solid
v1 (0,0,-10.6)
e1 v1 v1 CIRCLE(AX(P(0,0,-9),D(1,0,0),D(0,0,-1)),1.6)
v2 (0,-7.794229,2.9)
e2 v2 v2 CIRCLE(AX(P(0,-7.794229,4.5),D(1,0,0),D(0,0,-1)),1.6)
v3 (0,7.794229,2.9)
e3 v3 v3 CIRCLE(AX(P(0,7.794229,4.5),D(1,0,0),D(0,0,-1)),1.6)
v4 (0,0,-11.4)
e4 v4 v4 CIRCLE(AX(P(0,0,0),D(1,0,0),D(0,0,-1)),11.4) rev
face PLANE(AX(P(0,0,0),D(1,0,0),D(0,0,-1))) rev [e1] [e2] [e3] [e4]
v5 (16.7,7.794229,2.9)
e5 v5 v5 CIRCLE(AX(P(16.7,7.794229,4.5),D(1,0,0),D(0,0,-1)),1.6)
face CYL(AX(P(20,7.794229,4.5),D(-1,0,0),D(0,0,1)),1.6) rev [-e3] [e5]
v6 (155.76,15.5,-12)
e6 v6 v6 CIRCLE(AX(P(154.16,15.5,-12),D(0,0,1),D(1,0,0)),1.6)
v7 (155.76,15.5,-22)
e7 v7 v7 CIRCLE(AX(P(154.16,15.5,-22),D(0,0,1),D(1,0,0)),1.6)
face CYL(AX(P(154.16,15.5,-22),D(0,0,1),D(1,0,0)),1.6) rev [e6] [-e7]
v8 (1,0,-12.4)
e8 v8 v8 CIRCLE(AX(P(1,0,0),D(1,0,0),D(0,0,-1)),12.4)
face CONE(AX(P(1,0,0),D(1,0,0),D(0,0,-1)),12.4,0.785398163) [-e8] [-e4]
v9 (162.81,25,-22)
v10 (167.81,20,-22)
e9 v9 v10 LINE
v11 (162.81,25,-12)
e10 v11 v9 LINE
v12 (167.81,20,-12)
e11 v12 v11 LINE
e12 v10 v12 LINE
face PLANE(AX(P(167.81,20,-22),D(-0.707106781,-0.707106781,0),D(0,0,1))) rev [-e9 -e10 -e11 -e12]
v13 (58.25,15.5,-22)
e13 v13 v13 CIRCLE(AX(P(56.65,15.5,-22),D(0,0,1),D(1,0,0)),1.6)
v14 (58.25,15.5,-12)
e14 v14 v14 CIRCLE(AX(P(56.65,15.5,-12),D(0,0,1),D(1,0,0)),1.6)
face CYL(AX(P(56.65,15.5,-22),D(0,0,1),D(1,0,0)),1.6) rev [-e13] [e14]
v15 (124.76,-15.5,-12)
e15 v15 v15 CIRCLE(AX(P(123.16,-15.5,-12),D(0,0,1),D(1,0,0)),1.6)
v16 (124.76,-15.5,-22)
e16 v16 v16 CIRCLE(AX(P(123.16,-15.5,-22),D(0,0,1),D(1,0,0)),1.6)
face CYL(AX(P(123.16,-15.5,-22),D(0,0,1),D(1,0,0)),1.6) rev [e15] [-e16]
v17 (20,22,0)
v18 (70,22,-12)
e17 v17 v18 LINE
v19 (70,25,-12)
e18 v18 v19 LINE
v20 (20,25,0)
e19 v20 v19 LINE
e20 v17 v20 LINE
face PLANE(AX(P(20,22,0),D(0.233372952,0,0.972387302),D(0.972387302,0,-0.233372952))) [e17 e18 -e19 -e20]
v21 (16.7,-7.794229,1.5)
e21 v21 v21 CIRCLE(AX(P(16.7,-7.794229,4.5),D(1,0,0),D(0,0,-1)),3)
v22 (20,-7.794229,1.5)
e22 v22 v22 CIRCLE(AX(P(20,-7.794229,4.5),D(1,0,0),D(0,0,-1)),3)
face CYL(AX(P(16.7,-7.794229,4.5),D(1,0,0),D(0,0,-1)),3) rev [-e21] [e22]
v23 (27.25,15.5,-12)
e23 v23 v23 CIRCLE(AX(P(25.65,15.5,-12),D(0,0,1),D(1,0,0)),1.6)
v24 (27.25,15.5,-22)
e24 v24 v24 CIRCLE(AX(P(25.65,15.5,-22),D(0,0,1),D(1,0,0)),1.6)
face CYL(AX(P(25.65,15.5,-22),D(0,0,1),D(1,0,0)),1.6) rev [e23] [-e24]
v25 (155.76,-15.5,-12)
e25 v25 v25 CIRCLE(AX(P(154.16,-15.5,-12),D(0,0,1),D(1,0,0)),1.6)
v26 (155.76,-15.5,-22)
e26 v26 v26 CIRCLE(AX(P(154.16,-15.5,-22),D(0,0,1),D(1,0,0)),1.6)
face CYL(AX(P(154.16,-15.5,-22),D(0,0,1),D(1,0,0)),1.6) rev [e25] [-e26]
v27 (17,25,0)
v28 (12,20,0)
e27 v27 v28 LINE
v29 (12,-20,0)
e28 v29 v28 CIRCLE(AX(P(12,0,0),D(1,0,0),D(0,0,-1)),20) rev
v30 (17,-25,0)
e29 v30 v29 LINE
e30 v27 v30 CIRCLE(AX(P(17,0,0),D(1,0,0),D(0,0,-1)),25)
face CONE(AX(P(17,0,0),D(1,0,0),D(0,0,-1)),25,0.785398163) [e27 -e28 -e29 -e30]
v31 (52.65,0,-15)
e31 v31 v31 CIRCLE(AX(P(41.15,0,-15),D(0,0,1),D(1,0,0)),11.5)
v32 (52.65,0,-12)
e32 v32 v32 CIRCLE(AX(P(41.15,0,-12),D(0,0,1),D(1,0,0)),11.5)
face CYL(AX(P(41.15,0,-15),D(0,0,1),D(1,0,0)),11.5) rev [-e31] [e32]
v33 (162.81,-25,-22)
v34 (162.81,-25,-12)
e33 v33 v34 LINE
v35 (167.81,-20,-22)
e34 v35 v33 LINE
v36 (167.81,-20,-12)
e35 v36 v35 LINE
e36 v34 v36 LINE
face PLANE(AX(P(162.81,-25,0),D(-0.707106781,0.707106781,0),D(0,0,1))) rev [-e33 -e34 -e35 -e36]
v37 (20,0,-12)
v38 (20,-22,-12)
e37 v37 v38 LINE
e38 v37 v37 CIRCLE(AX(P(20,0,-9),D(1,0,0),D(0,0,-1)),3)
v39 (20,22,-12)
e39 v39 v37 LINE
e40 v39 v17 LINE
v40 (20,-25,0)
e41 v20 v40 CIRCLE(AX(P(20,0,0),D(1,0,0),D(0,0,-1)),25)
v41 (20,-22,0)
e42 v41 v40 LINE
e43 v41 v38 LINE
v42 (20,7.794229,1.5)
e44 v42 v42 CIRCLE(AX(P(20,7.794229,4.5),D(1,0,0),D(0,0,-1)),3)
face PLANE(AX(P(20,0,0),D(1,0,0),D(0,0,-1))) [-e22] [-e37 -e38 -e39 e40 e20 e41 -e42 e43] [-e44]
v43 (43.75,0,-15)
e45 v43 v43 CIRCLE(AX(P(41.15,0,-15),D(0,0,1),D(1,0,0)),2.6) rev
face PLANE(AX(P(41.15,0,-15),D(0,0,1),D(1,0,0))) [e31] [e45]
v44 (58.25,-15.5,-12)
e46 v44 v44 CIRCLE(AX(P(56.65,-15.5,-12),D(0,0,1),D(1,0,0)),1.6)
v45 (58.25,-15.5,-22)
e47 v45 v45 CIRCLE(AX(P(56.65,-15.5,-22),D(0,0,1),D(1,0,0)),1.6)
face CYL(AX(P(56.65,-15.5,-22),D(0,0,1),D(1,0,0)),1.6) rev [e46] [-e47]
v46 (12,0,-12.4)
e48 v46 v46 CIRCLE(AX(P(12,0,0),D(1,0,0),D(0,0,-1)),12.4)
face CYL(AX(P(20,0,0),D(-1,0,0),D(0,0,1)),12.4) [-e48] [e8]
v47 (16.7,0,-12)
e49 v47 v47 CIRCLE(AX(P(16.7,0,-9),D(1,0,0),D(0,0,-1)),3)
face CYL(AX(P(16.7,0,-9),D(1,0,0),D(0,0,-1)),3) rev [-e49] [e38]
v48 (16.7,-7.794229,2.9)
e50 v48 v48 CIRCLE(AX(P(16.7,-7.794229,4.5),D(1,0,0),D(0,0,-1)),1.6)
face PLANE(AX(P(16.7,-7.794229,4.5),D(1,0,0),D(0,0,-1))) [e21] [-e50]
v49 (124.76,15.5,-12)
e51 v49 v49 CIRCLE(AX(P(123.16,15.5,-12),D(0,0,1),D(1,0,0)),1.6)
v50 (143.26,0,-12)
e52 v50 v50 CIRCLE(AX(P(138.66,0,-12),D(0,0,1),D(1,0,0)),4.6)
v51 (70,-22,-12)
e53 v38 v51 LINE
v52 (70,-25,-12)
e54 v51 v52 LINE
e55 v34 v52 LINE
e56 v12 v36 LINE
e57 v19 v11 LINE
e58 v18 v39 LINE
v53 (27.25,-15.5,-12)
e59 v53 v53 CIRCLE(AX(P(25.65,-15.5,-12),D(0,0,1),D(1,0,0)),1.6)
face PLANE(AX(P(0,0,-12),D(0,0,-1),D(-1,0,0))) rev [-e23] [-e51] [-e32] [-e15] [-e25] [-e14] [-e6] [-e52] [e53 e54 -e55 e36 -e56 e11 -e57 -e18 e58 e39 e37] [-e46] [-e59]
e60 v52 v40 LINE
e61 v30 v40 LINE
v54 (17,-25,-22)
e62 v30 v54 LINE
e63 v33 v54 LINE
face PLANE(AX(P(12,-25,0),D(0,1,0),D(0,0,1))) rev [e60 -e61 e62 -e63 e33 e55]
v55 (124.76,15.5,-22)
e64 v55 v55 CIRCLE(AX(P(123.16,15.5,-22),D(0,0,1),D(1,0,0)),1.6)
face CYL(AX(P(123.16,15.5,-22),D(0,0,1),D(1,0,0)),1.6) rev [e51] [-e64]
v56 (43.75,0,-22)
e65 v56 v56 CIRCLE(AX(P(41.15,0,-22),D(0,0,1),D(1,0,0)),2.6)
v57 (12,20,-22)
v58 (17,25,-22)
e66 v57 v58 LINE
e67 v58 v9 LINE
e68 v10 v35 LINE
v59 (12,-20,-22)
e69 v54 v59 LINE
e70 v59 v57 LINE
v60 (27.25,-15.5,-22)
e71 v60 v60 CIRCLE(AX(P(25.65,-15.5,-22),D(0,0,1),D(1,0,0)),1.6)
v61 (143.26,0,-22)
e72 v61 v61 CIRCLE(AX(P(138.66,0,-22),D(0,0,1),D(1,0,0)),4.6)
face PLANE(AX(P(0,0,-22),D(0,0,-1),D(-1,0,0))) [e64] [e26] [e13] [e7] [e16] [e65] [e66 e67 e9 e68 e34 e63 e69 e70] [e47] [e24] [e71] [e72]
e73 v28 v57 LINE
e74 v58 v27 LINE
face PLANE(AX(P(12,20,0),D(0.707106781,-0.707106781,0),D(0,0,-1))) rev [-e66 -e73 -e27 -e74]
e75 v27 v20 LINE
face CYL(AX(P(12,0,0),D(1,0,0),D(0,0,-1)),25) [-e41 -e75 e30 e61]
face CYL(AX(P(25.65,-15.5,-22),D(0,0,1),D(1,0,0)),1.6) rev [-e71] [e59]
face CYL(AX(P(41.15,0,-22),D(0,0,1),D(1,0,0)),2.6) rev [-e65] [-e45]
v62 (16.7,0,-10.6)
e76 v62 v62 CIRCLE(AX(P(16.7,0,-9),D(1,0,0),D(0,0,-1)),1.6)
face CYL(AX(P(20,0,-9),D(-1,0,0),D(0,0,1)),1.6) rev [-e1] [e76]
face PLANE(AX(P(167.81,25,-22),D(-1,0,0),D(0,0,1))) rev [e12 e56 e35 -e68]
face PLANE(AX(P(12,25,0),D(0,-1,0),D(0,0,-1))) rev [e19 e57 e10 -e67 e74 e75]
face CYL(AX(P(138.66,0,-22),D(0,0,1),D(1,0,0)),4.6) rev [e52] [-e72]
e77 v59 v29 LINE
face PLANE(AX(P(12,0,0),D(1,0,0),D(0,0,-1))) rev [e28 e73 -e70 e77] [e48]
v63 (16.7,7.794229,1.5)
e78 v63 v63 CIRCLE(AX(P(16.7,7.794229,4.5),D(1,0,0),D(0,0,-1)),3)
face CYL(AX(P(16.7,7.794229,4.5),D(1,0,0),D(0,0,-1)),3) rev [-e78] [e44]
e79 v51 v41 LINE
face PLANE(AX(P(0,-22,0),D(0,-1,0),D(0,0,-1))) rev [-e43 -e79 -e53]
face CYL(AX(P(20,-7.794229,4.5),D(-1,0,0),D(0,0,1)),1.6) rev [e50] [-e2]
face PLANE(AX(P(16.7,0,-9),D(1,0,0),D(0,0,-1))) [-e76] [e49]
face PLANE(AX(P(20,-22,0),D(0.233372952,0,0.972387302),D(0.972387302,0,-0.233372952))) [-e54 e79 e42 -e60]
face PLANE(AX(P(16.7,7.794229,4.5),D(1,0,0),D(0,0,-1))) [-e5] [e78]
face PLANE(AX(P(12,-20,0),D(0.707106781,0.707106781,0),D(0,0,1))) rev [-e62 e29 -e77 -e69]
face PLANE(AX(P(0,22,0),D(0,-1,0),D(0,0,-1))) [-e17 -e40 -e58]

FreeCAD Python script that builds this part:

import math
import FreeCAD as App
import Part
import Sketcher
Q = App.Units.Quantity


def edges_at(feature, points):
    """Names of the edges that pass closest to the given points."""
    edges = feature.Shape.Edges
    near = lambda p: min(range(len(edges)), key=lambda i: edges[i].distToShape(Part.Vertex(*p))[0])
    return sorted({f"Edge{near(p) + 1}" for p in points})

doc = App.newDocument("Part")
params = doc.addObject("Spreadsheet::Sheet", "Params")
for row, (alias, value) in enumerate([
    ("sketch1_diameter", "24.8 mm"),
    ("sketch1_diameter2", "3.2 mm"),
    ("pad1_length", "20 mm"),
    ("sketch2_radius", "25 mm"),
    ("sketch2_radius2", "12.4 mm"),
    ("sketch2_height", "12 mm"),
    ("pad2_length", "8 mm"),
    ("sketch3_height", "50 mm"),
    ("sketch3_width", "155.81 mm"),
    ("pad3_length", "10 mm"),
    ("sketch4_diameter", "3.2 mm"),
    ("sketch4_diameter2", "5.2 mm"),
    ("sketch4_diameter3", "9.2 mm"),
    ("pocket1_length", "10 mm"),
    ("sketch5_diameter", "6 mm"),
    ("pocket2_length", "3.3 mm"),
    ("sketch6_diameter", "23 mm"),
    ("pocket3_length", "3 mm"),
    ("sketch7_width", "50 mm"),
    ("sketch7_height", "12 mm"),
    ("pad4_length", "3 mm"),
    ("sketch8_width", "50 mm"),
    ("sketch8_height", "12 mm"),
    ("pad5_length", "3 mm"),
    ("chamfer_size", "5 mm"),
    ("chamfer2_size", "1 mm"),
], start=1):
    params.set(f"A{row}", alias)
    params.set(f"B{row}", "=" + value)
    params.setAlias(f"B{row}", alias)

body = doc.addObject("PartDesign::Body", "Body")

sketch1 = body.newObject("Sketcher::SketchObject", "Sketch")
sketch1.AttachmentSupport = (doc.getObject("YZ_Plane"), [""])
sketch1.MapMode = "FlatFace"
sketch1.addGeometry([
    Part.Circle(App.Vector(0, 0, 0), App.Vector(0, 0, 1), 12.4),
    Part.Circle(App.Vector(-7.8, 4.5, 0), App.Vector(0, 0, 1), 1.6),
    Part.Circle(App.Vector(0, -9, 0), App.Vector(0, 0, 1), 1.6),
    Part.Circle(App.Vector(7.8, 4.5, 0), App.Vector(0, 0, 1), 1.6),
], False)
sketch1.addConstraint([
    Sketcher.Constraint("Coincident", 0, 3, -1, 1),
    Sketcher.Constraint("Equal", 1, 2),
    Sketcher.Constraint("Equal", 2, 3),
    Sketcher.Constraint("Symmetric", 1, 3, 3, 3, -2),
    Sketcher.Constraint("PointOnObject", 2, 3, -2),
    Sketcher.Constraint("Diameter", 0, Q("24.8 mm")),
    Sketcher.Constraint("Diameter", 1, Q("3.2 mm")),
    Sketcher.Constraint("DistanceY", 2, 3, -1, 1, Q("9 mm")),
    Sketcher.Constraint("DistanceY", -1, 1, 1, 3, Q("4.5 mm")),
    Sketcher.Constraint("DistanceX", 1, 3, -1, 1, Q("7.794229 mm")),
])
sketch1.setExpression("Constraints[5]", "Params.sketch1_diameter")
sketch1.setExpression("Constraints[6]", "Params.sketch1_diameter2")
pad1 = body.newObject("PartDesign::Pad", "Pad")
pad1.Profile = sketch1
pad1.setExpression("Length", "Params.pad1_length")

sketch2 = body.newObject("Sketcher::SketchObject", "Sketch001")
sketch2.AttachmentSupport = (doc.getObject("YZ_Plane"), [""])
sketch2.MapMode = "FlatFace"
sketch2.AttachmentOffset = App.Placement(App.Vector(0, 0, 20), App.Rotation())
sketch2.addGeometry([
    Part.LineSegment(App.Vector(25, -12, 0), App.Vector(25, 0, 0)),
    Part.ArcOfCircle(Part.Circle(App.Vector(0, 0, 0), App.Vector(0, 0, 1), 25), math.radians(0), math.radians(180)),
    Part.LineSegment(App.Vector(-25, 0, 0), App.Vector(-25, -12, 0)),
    Part.LineSegment(App.Vector(-25, -12, 0), App.Vector(-3, -12, 0)),
    Part.ArcOfCircle(Part.Circle(App.Vector(0, 0, 0), App.Vector(0, 0, 1), 12), math.radians(-75), math.radians(255)),
    Part.LineSegment(App.Vector(3, -12, 0), App.Vector(25, -12, 0)),
], False)
sketch2.addConstraint([
    Sketcher.Constraint("Tangent", 0, 2, 1, 1),
    Sketcher.Constraint("Tangent", 1, 2, 2, 1),
    Sketcher.Constraint("Coincident", 2, 2, 3, 1),
    Sketcher.Constraint("Coincident", 3, 2, 4, 2),
    Sketcher.Constraint("Coincident", 4, 1, 5, 1),
    Sketcher.Constraint("Coincident", 5, 2, 0, 1),
    Sketcher.Constraint("Vertical", 0),
    Sketcher.Constraint("Vertical", 2),
    Sketcher.Constraint("Horizontal", 3),
    Sketcher.Constraint("Horizontal", 5),
    Sketcher.Constraint("Coincident", 1, 3, -1, 1),
    Sketcher.Constraint("Coincident", 4, 3, -1, 1),
    Sketcher.Constraint("Horizontal", 3, 2, 4, 1),
    Sketcher.Constraint("Radius", 1, Q("25 mm")),
    Sketcher.Constraint("Radius", 4, Q("12.4 mm")),
    Sketcher.Constraint("DistanceY", 0, 1, 0, 2, Q("12 mm")),
])
sketch2.setExpression("Constraints[13]", "Params.sketch2_radius")
sketch2.setExpression("Constraints[14]", "Params.sketch2_radius2")
sketch2.setExpression("Constraints[15]", "Params.sketch2_height")
pad2 = body.newObject("PartDesign::Pad", "Pad001")
pad2.Profile = sketch2
pad2.setExpression("Length", "Params.pad2_length")
pad2.Reversed = True

sketch3 = body.newObject("Sketcher::SketchObject", "Sketch002")
sketch3.AttachmentSupport = (doc.getObject("XY_Plane"), [""])
sketch3.MapMode = "FlatFace"
sketch3.AttachmentOffset = App.Placement(App.Vector(0, 0, -12), App.Rotation())
sketch3.addGeometry([
    Part.LineSegment(App.Vector(168, 25, 0), App.Vector(168, -25, 0)),
    Part.LineSegment(App.Vector(168, -25, 0), App.Vector(12, -25, 0)),
    Part.LineSegment(App.Vector(12, -25, 0), App.Vector(12, 25, 0)),
    Part.LineSegment(App.Vector(12, 25, 0), App.Vector(168, 25, 0)),
], False)
sketch3.addConstraint([
    Sketcher.Constraint("Coincident", 0, 2, 1, 1),
    Sketcher.Constraint("Coincident", 1, 2, 2, 1),
    Sketcher.Constraint("Coincident", 2, 2, 3, 1),
    Sketcher.Constraint("Coincident", 3, 2, 0, 1),
    Sketcher.Constraint("Vertical", 0),
    Sketcher.Constraint("Horizontal", 1),
    Sketcher.Constraint("Vertical", 2),
    Sketcher.Constraint("Horizontal", 3),
    Sketcher.Constraint("DistanceY", 0, 2, 0, 1, Q("50 mm")),
    Sketcher.Constraint("DistanceY", 0, 2, -1, 1, Q("25 mm")),
    Sketcher.Constraint("DistanceX", -1, 1, 1, 2, Q("12 mm")),
    Sketcher.Constraint("DistanceX", 1, 2, 1, 1, Q("155.81 mm")),
])
sketch3.setExpression("Constraints[8]", "Params.sketch3_height")
sketch3.setExpression("Constraints[11]", "Params.sketch3_width")
pad3 = body.newObject("PartDesign::Pad", "Pad002")
pad3.Profile = sketch3
pad3.setExpression("Length", "Params.pad3_length")
pad3.Reversed = True

sketch4 = body.newObject("Sketcher::SketchObject", "Sketch003")
sketch4.AttachmentSupport = (doc.getObject("XY_Plane"), [""])
sketch4.MapMode = "FlatFace"
sketch4.AttachmentOffset = App.Placement(App.Vector(0, 0, -12), App.Rotation())
sketch4.addGeometry([
    Part.Circle(App.Vector(25.6, 15.5, 0), App.Vector(0, 0, 1), 1.6),
    Part.Circle(App.Vector(56.6, 15.5, 0), App.Vector(0, 0, 1), 1.6),
    Part.Circle(App.Vector(56.6, -15.5, 0), App.Vector(0, 0, 1), 1.6),
    Part.Circle(App.Vector(25.6, -15.5, 0), App.Vector(0, 0, 1), 1.6),
    Part.Circle(App.Vector(41.1, 0, 0), App.Vector(0, 0, 1), 2.6),
    Part.Circle(App.Vector(138.7, 0, 0), App.Vector(0, 0, 1), 4.6),
    Part.Circle(App.Vector(123.2, 15.5, 0), App.Vector(0, 0, 1), 1.6),
    Part.Circle(App.Vector(154.2, 15.5, 0), App.Vector(0, 0, 1), 1.6),
    Part.Circle(App.Vector(154.2, -15.5, 0), App.Vector(0, 0, 1), 1.6),
    Part.Circle(App.Vector(123.2, -15.5, 0), App.Vector(0, 0, 1), 1.6),
], False)
sketch4.addConstraint([
    Sketcher.Constraint("Equal", 0, 1),
    Sketcher.Constraint("Equal", 1, 2),
    Sketcher.Constraint("Equal", 2, 3),
    Sketcher.Constraint("Equal", 3, 6),
    Sketcher.Constraint("Equal", 6, 7),
    Sketcher.Constraint("Equal", 7, 8),
    Sketcher.Constraint("Equal", 8, 9),
    Sketcher.Constraint("Symmetric", 1, 3, 2, 3, -1),
    Sketcher.Constraint("Symmetric", 0, 3, 3, 3, -1),
    Sketcher.Constraint("Symmetric", 7, 3, 8, 3, -1),
    Sketcher.Constraint("Symmetric", 6, 3, 9, 3, -1),
    Sketcher.Constraint("PointOnObject", 4, 3, -1),
    Sketcher.Constraint("PointOnObject", 5, 3, -1),
    Sketcher.Constraint("Horizontal", 0, 3, 1, 3),
    Sketcher.Constraint("Horizontal", 1, 3, 6, 3),
    Sketcher.Constraint("Horizontal", 6, 3, 7, 3),
    Sketcher.Constraint("Diameter", 0, Q("3.2 mm")),
    Sketcher.Constraint("Diameter", 4, Q("5.2 mm")),
    Sketcher.Constraint("Diameter", 5, Q("9.2 mm")),
    Sketcher.Constraint("DistanceX", 0, 3, 1, 3, Q("31 mm")),
    Sketcher.Constraint("DistanceY", 2, 3, 1, 3, Q("31 mm")),
    Sketcher.Constraint("DistanceX", 6, 3, 7, 3, Q("31 mm")),
    Sketcher.Constraint("DistanceX", 0, 3, 4, 3, Q("15.5 mm")),
    Sketcher.Constraint("DistanceX", 6, 3, 5, 3, Q("15.5 mm")),
    Sketcher.Constraint("DistanceX", -1, 1, 0, 3, Q("25.65 mm")),
    Sketcher.Constraint("DistanceX", -1, 1, 5, 3, Q("138.66 mm")),
])
sketch4.setExpression("Constraints[16]", "Params.sketch4_diameter")
sketch4.setExpression("Constraints[17]", "Params.sketch4_diameter2")
sketch4.setExpression("Constraints[18]", "Params.sketch4_diameter3")
pocket1 = body.newObject("PartDesign::Pocket", "Pocket")
pocket1.Profile = sketch4
pocket1.setExpression("Length", "Params.pocket1_length")

sketch5 = body.newObject("Sketcher::SketchObject", "Sketch004")
sketch5.AttachmentSupport = (doc.getObject("YZ_Plane"), [""])
sketch5.MapMode = "FlatFace"
sketch5.AttachmentOffset = App.Placement(App.Vector(0, 0, 20), App.Rotation())
sketch5.addGeometry([
    Part.Circle(App.Vector(7.8, 4.5, 0), App.Vector(0, 0, 1), 3),
    Part.Circle(App.Vector(0, -9, 0), App.Vector(0, 0, 1), 3),
    Part.Circle(App.Vector(-7.8, 4.5, 0), App.Vector(0, 0, 1), 3),
], False)
sketch5.addConstraint([
    Sketcher.Constraint("Equal", 0, 1),
    Sketcher.Constraint("Equal", 1, 2),
    Sketcher.Constraint("Symmetric", 0, 3, 2, 3, -2),
    Sketcher.Constraint("PointOnObject", 1, 3, -2),
    Sketcher.Constraint("Diameter", 0, Q("6 mm")),
    Sketcher.Constraint("DistanceY", 1, 3, -1, 1, Q("9 mm")),
    Sketcher.Constraint("DistanceY", -1, 1, 0, 3, Q("4.5 mm")),
    Sketcher.Constraint("DistanceX", -1, 1, 0, 3, Q("7.794229 mm")),
])
sketch5.setExpression("Constraints[4]", "Params.sketch5_diameter")
pocket2 = body.newObject("PartDesign::Pocket", "Pocket001")
pocket2.Profile = sketch5
pocket2.setExpression("Length", "Params.pocket2_length")

sketch6 = body.newObject("Sketcher::SketchObject", "Sketch005")
sketch6.AttachmentSupport = (doc.getObject("XY_Plane"), [""])
sketch6.MapMode = "FlatFace"
sketch6.AttachmentOffset = App.Placement(App.Vector(0, 0, -12), App.Rotation())
sketch6.addGeometry(Part.Circle(App.Vector(41, 0, 0), App.Vector(0, 0, 1), 12), False)
sketch6.addConstraint([
    Sketcher.Constraint("PointOnObject", 0, 3, -1),
    Sketcher.Constraint("Diameter", 0, Q("23 mm")),
    Sketcher.Constraint("DistanceX", -1, 1, 0, 3, Q("41.15 mm")),
])
sketch6.setExpression("Constraints[1]", "Params.sketch6_diameter")
pocket3 = body.newObject("PartDesign::Pocket", "Pocket002")
pocket3.Profile = sketch6
pocket3.setExpression("Length", "Params.pocket3_length")

sketch7 = body.newObject("Sketcher::SketchObject", "Sketch006")
sketch7.AttachmentSupport = (doc.getObject("XZ_Plane"), [""])
sketch7.MapMode = "FlatFace"
sketch7.AttachmentOffset = App.Placement(App.Vector(0, 0, 25), App.Rotation())
sketch7.addGeometry([
    Part.LineSegment(App.Vector(70, -12, 0), App.Vector(20, 0, 0)),
    Part.LineSegment(App.Vector(20, 0, 0), App.Vector(20, -12, 0)),
    Part.LineSegment(App.Vector(20, -12, 0), App.Vector(70, -12, 0)),
], False)
sketch7.addConstraint([
    Sketcher.Constraint("Coincident", 0, 2, 1, 1),
    Sketcher.Constraint("Coincident", 1, 2, 2, 1),
    Sketcher.Constraint("Coincident", 2, 2, 0, 1),
    Sketcher.Constraint("Vertical", 1),
    Sketcher.Constraint("Horizontal", 2),
    Sketcher.Constraint("PointOnObject", 0, 2, -1),
    Sketcher.Constraint("DistanceX", 2, 1, 2, 2, Q("50 mm")),
    Sketcher.Constraint("DistanceY", 1, 2, 1, 1, Q("12 mm")),
    Sketcher.Constraint("DistanceX", -1, 1, 0, 2, Q("20 mm")),
])
sketch7.setExpression("Constraints[6]", "Params.sketch7_width")
sketch7.setExpression("Constraints[7]", "Params.sketch7_height")
pad4 = body.newObject("PartDesign::Pad", "Pad003")
pad4.Profile = sketch7
pad4.setExpression("Length", "Params.pad4_length")
pad4.Reversed = True

sketch8 = body.newObject("Sketcher::SketchObject", "Sketch007")
sketch8.AttachmentSupport = (doc.getObject("XZ_Plane"), [""])
sketch8.MapMode = "FlatFace"
sketch8.AttachmentOffset = App.Placement(App.Vector(0, 0, -25), App.Rotation())
sketch8.addGeometry([
    Part.LineSegment(App.Vector(20, 0, 0), App.Vector(70, -12, 0)),
    Part.LineSegment(App.Vector(70, -12, 0), App.Vector(20, -12, 0)),
    Part.LineSegment(App.Vector(20, -12, 0), App.Vector(20, 0, 0)),
], False)
sketch8.addConstraint([
    Sketcher.Constraint("Coincident", 0, 2, 1, 1),
    Sketcher.Constraint("Coincident", 1, 2, 2, 1),
    Sketcher.Constraint("Coincident", 2, 2, 0, 1),
    Sketcher.Constraint("Horizontal", 1),
    Sketcher.Constraint("Vertical", 2),
    Sketcher.Constraint("PointOnObject", 2, 2, -1),
    Sketcher.Constraint("DistanceX", 1, 2, 1, 1, Q("50 mm")),
    Sketcher.Constraint("DistanceY", 2, 1, 2, 2, Q("12 mm")),
    Sketcher.Constraint("DistanceX", -1, 1, 0, 2, Q("70 mm")),
])
sketch8.setExpression("Constraints[6]", "Params.sketch8_width")
sketch8.setExpression("Constraints[7]", "Params.sketch8_height")
pad5 = body.newObject("PartDesign::Pad", "Pad004")
pad5.Profile = sketch8
pad5.setExpression("Length", "Params.pad5_length")
doc.recompute()

chamfer = body.newObject("PartDesign::Chamfer", "Chamfer")
chamfer.Base = (pad5, edges_at(pad5, [
    (12, 0, 25),
    (12, 25, -11),
    (12, -25, -11),
    (167.81, 25, -17),
    (167.81, -25, -17),
]))
chamfer.setExpression("Size", "Params.chamfer_size")
doc.recompute()

chamfer2 = body.newObject("PartDesign::Chamfer", "Chamfer001")
chamfer2.Base = (chamfer, edges_at(chamfer, [(0, 0, 12.4)]))
chamfer2.setExpression("Size", "Params.chamfer2_size")

doc.recompute()
